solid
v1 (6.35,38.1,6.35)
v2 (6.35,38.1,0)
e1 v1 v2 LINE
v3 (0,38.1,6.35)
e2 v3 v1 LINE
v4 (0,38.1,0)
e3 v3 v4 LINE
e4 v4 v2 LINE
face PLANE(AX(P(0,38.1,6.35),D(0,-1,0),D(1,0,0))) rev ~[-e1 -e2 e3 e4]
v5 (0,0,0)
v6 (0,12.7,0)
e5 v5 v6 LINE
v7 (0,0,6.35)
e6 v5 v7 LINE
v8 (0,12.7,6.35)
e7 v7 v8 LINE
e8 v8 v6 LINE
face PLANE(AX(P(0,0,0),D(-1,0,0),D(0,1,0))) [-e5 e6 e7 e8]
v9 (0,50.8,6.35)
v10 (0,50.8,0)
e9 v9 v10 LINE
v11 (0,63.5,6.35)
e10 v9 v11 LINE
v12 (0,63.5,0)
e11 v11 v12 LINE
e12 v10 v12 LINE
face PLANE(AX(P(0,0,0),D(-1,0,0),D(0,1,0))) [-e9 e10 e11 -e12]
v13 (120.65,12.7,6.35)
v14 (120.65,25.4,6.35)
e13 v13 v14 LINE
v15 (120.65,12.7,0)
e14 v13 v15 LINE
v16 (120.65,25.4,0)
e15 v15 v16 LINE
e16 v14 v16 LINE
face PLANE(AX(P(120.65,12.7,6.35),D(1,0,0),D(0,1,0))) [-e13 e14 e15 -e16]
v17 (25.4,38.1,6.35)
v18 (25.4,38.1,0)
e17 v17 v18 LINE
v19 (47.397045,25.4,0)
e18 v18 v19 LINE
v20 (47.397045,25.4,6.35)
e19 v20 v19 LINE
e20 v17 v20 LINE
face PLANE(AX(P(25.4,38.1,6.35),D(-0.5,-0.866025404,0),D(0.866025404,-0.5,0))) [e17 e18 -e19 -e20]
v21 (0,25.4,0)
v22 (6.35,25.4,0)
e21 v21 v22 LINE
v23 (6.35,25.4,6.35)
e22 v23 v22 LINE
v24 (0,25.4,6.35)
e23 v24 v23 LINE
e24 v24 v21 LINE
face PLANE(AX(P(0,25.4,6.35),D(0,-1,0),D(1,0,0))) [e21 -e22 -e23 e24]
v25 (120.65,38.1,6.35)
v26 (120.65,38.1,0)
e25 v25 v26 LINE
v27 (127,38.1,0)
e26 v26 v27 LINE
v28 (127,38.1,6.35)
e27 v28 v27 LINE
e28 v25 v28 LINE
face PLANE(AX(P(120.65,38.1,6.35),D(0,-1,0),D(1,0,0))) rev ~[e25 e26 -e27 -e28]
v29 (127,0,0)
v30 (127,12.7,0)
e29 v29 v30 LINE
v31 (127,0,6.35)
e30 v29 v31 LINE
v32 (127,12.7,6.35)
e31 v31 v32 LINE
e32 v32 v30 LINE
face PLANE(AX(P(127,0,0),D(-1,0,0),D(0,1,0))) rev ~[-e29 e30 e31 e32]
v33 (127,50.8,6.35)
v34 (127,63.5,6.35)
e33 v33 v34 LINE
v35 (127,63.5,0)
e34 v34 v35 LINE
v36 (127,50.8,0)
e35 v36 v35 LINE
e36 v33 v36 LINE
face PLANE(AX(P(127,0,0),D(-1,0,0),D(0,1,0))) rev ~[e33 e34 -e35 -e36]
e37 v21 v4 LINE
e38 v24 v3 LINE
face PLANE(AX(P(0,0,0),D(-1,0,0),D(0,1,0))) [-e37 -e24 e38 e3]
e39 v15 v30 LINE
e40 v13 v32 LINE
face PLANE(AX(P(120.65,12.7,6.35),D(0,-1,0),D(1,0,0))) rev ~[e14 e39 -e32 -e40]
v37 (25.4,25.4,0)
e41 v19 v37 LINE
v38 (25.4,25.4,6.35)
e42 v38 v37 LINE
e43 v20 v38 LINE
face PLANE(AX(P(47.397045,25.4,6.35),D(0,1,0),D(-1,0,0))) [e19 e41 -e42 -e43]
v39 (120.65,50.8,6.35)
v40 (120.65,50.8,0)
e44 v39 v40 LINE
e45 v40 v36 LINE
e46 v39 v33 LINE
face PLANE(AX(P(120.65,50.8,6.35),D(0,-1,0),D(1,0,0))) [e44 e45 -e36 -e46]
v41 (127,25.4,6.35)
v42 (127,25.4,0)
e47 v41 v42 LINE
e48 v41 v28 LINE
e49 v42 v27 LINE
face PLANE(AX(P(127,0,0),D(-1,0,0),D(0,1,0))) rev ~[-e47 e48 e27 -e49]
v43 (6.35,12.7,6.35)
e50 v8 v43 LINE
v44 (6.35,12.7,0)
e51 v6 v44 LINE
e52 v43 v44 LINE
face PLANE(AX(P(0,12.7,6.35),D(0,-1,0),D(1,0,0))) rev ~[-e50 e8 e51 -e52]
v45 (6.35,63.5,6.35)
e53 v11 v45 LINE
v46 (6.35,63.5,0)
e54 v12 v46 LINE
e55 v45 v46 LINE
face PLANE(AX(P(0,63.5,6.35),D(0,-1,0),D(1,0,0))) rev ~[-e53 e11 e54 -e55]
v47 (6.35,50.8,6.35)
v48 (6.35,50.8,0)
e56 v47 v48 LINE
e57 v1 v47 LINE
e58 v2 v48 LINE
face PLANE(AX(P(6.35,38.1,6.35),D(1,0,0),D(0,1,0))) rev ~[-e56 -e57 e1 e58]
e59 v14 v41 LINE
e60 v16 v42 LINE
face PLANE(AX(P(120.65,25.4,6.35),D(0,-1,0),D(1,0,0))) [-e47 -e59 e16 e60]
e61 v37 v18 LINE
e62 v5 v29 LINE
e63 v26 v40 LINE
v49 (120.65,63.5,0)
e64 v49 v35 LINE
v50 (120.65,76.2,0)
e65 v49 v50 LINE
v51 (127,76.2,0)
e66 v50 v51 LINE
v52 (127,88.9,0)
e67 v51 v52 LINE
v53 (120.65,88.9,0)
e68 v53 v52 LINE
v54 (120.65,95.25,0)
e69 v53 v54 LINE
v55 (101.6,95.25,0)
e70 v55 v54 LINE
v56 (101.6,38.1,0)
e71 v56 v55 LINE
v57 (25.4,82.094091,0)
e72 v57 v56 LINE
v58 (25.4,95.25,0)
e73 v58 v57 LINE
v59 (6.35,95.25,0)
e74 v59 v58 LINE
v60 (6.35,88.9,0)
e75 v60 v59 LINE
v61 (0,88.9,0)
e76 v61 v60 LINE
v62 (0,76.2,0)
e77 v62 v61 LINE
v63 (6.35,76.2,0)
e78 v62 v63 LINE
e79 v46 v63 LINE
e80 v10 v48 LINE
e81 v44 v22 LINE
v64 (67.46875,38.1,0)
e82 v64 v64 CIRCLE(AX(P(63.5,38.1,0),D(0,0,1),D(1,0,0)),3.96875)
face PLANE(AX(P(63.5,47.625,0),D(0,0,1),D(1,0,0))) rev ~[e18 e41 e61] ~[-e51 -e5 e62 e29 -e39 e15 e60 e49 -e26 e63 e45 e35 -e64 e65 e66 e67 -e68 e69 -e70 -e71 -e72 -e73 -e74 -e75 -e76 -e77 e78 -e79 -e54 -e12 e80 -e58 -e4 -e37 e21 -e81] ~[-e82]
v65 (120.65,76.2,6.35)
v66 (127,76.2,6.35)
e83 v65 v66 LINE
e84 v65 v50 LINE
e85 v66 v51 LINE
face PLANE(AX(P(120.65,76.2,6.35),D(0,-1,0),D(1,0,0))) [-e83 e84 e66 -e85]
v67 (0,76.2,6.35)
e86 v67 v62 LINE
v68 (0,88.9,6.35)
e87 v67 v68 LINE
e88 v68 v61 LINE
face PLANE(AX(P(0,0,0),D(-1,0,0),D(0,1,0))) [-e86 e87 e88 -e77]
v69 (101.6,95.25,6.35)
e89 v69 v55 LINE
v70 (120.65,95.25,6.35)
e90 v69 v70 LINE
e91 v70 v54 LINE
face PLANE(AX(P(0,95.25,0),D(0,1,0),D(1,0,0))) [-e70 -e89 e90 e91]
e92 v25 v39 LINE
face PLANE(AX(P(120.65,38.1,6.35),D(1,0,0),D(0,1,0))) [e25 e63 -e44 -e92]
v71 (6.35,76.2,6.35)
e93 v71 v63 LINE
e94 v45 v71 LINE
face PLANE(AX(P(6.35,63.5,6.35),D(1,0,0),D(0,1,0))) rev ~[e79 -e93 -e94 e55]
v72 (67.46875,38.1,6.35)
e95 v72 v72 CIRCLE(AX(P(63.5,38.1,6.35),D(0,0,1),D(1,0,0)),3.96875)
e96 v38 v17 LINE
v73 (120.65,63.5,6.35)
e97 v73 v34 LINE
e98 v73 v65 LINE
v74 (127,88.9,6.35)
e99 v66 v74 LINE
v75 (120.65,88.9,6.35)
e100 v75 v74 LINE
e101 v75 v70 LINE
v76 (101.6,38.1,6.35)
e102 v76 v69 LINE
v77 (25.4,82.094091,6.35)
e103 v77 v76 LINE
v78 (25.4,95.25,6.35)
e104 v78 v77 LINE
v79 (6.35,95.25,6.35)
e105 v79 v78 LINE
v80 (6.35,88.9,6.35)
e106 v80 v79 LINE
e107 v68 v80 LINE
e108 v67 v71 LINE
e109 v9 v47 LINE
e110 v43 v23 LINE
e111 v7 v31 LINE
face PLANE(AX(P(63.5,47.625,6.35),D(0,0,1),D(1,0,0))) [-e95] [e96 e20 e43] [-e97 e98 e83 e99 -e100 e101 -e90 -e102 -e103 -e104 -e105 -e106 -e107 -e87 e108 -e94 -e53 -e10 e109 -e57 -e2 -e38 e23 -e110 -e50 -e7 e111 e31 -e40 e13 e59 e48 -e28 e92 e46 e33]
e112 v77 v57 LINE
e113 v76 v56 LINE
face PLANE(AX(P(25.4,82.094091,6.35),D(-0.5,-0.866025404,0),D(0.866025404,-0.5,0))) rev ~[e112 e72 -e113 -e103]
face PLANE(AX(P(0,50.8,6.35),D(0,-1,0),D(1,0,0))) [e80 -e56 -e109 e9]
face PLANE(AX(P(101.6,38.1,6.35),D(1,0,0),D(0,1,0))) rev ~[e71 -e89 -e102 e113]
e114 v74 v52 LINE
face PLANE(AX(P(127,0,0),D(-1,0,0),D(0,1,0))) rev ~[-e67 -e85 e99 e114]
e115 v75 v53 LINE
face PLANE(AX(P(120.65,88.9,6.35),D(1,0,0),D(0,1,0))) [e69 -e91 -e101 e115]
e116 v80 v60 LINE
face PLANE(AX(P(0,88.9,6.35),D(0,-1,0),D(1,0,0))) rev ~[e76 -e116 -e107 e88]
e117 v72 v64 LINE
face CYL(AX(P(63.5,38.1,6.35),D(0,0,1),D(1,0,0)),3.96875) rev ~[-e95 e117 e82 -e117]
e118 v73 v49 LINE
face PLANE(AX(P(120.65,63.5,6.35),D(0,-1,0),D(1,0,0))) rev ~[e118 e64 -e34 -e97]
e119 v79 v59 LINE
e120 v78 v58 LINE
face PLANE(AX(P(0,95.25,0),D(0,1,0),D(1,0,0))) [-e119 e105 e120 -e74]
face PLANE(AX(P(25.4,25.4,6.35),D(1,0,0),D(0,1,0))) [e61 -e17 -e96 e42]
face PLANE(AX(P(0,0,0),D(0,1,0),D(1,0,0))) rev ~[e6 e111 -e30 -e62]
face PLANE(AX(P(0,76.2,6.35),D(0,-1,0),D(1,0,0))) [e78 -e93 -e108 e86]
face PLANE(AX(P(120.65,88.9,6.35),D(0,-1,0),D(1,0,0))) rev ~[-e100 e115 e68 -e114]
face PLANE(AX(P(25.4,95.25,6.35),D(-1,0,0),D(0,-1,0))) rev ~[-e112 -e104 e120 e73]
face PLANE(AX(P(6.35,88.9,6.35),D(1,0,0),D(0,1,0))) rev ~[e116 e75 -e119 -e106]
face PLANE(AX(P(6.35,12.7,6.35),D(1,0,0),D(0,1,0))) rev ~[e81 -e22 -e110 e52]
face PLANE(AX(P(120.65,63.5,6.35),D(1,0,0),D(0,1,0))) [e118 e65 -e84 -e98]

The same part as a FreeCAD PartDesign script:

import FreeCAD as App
import Part
import Sketcher
from FreeCAD import Vector
Q = App.Units.Quantity


def add_polygon(sketch, points):
    """Adds a closed chain of lines whose ends are joined by coincident constraints."""
    first, n = sketch.GeometryCount, len(points)
    for a, b in zip(points, points[1:] + points[:1]):
        sketch.addGeometry(Part.LineSegment(App.Vector(*a, 0), App.Vector(*b, 0)), False)
    for i in range(n):
        sketch.addConstraint(Sketcher.Constraint("Coincident", first + i, 2, first + (i + 1) % n, 1))

doc = App.newDocument("Part")
params = doc.addObject("Spreadsheet::Sheet", "Params")
for row, (alias, value) in enumerate([
    ("sketch1_width", "5 in"),
    ("sketch1_height", "3.75 in"),
    ("pad1_length", "0.25 in"),
    ("sketch2_diameter", "0.3125 in"),
    ("sketch3_height", "0.5 in"),
    ("sketch3_width", "0.25 in"),
    ("sketch4_height", "0.5 in"),
    ("sketch4_width", "0.25 in"),
    ("linearpattern_pitch", "1 in"),
    ("sketch5_width", "3 in"),
    ("sketch5_length", "1 in"),
    ("sketch5_height", "0.5 in"),
    ("sketch5_height2", "2.25 in"),
], start=1):
    params.set(f"A{row}", alias)
    params.set(f"B{row}", "=" + value)
    params.setAlias(f"B{row}", alias)

body = doc.addObject("PartDesign::Body", "Body")

# Sketch on XY plane
sketch1 = doc.addObject("Sketcher::SketchObject", "Sketch")
body.addObject(sketch1)
sketch1.AttachmentSupport = (doc.XY_Plane, [""])
sketch1.MapMode = "FlatFace"
add_polygon(sketch1, [(0, 95.25), (0, 0), (127, 0), (127, 95.25)])  # lines 0-3
sketch1.addConstraint(Sketcher.Constraint("Vertical", 0))
sketch1.addConstraint(Sketcher.Constraint("Horizontal", 1))
sketch1.addConstraint(Sketcher.Constraint("Vertical", 2))
sketch1.addConstraint(Sketcher.Constraint("Horizontal", 3))
sketch1.addConstraint(Sketcher.Constraint("Coincident", 0, 2, -1, 1))
sketch1.addConstraint(Sketcher.Constraint("DistanceX", 1, 1, 1, 2, Q("5 in")))
sketch1.addConstraint(Sketcher.Constraint("DistanceY", 0, 2, 0, 1, Q("3.75 in")))
sketch1.setExpression("Constraints[9]", "Params.sketch1_width")
sketch1.setExpression("Constraints[10]", "Params.sketch1_height")
pad1 = doc.addObject("PartDesign::Pad", "Pad")
body.addObject(pad1)
pad1.Profile = sketch1
pad1.setExpression("Length", "Params.pad1_length")

# Sketch on XY plane
sketch2 = doc.addObject("Sketcher::SketchObject", "Sketch001")
body.addObject(sketch2)
sketch2.AttachmentSupport = (doc.XY_Plane, [""])
sketch2.MapMode = "FlatFace"
sketch2.AttachmentOffset = App.Placement(Vector(0, 0, 0.25 * 25.4), App.Rotation())
sketch2.addGeometry(Part.Circle(Vector(63.5, 38.1, 0), Vector(0, 0, 1), 3.96875), False)
sketch2.addConstraint(Sketcher.Constraint("Diameter", 0, Q("0.3125 in")))
sketch2.addConstraint(Sketcher.Constraint("DistanceX", -1, 1, 0, 3, Q("2.5 in")))
sketch2.addConstraint(Sketcher.Constraint("DistanceY", -1, 1, 0, 3, Q("1.5 in")))
sketch2.setExpression("Constraints[0]", "Params.sketch2_diameter")
pocket1 = doc.addObject("PartDesign::Pocket", "Pocket")
body.addObject(pocket1)
pocket1.Profile = sketch2
pocket1.Type = "ThroughAll"

# Sketch on XY plane
sketch3 = doc.addObject("Sketcher::SketchObject", "Sketch002")
body.addObject(sketch3)
sketch3.AttachmentSupport = (doc.XY_Plane, [""])
sketch3.MapMode = "FlatFace"
sketch3.AttachmentOffset = App.Placement(Vector(0, 0, 0.25 * 25.4), App.Rotation())
add_polygon(sketch3, [(0, 25.4), (0, 12.7), (6.35, 12.7), (6.35, 25.4)])  # lines 0-3
sketch3.addConstraint(Sketcher.Constraint("Vertical", 0))
sketch3.addConstraint(Sketcher.Constraint("Horizontal", 1))
sketch3.addConstraint(Sketcher.Constraint("Vertical", 2))
sketch3.addConstraint(Sketcher.Constraint("Horizontal", 3))
sketch3.addConstraint(Sketcher.Constraint("PointOnObject", 0, 2, -2))
sketch3.addConstraint(Sketcher.Constraint("DistanceY", 0, 2, 0, 1, Q("0.5 in")))
sketch3.addConstraint(Sketcher.Constraint("DistanceY", -1, 1, 2, 2, Q("1 in")))
sketch3.addConstraint(Sketcher.Constraint("DistanceX", 1, 1, 1, 2, Q("0.25 in")))
sketch3.setExpression("Constraints[9]", "Params.sketch3_height")
sketch3.setExpression("Constraints[11]", "Params.sketch3_width")
pocket2 = doc.addObject("PartDesign::Pocket", "Pocket001")
body.addObject(pocket2)
pocket2.Profile = sketch3
pocket2.Type = "ThroughAll"

# Sketch on XY plane
sketch4 = doc.addObject("Sketcher::SketchObject", "Sketch003")
body.addObject(sketch4)
sketch4.AttachmentSupport = (doc.XY_Plane, [""])
sketch4.MapMode = "FlatFace"
sketch4.AttachmentOffset = App.Placement(Vector(0, 0, 0.25 * 25.4), App.Rotation())
add_polygon(sketch4, [(120.65, 25.4), (120.65, 12.7), (127, 12.7), (127, 25.4)])  # lines 0-3
sketch4.addConstraint(Sketcher.Constraint("Vertical", 0))
sketch4.addConstraint(Sketcher.Constraint("Horizontal", 1))
sketch4.addConstraint(Sketcher.Constraint("Vertical", 2))
sketch4.addConstraint(Sketcher.Constraint("Horizontal", 3))
sketch4.addConstraint(Sketcher.Constraint("DistanceY", 0, 2, 0, 1, Q("0.5 in")))
sketch4.addConstraint(Sketcher.Constraint("DistanceX", -1, 1, 1, 2, Q("5 in")))
sketch4.addConstraint(Sketcher.Constraint("DistanceY", -1, 1, 2, 2, Q("1 in")))
sketch4.addConstraint(Sketcher.Constraint("DistanceX", 1, 1, 1, 2, Q("0.25 in")))
sketch4.setExpression("Constraints[8]", "Params.sketch4_height")
sketch4.setExpression("Constraints[11]", "Params.sketch4_width")
pocket3 = doc.addObject("PartDesign::Pocket", "Pocket002")
body.addObject(pocket3)
pocket3.Profile = sketch4
pocket3.Type = "ThroughAll"
doc.recompute()

linearpattern = doc.addObject("PartDesign::LinearPattern", "LinearPattern")
body.addObject(linearpattern)
linearpattern.Originals = [pocket2, pocket3]
linearpattern.Direction = (doc.Y_Axis, [""])
linearpattern.Mode = "offset"
linearpattern.setExpression("Offset", "Params.linearpattern_pitch")
linearpattern.Occurrences = 4
body.Tip = linearpattern

# Sketch on XY plane
sketch5 = doc.addObject("Sketcher::SketchObject", "Sketch004")
body.addObject(sketch5)
sketch5.AttachmentSupport = (doc.XY_Plane, [""])
sketch5.MapMode = "FlatFace"
sketch5.AttachmentOffset = App.Placement(Vector(0, 0, 0.25 * 25.4), App.Rotation())
add_polygon(sketch5, [(25.4, 95.25), (25.4, 82.094091), (101.6, 38.1), (101.6, 95.25)])  # lines 0-3
add_polygon(sketch5, [(47.397045, 25.4), (25.4, 38.1), (25.4, 25.4)])  # lines 4-6
sketch5.addConstraint(Sketcher.Constraint("Vertical", 0))
sketch5.addConstraint(Sketcher.Constraint("Vertical", 2))
sketch5.addConstraint(Sketcher.Constraint("Horizontal", 3))
sketch5.addConstraint(Sketcher.Constraint("Vertical", 5))
sketch5.addConstraint(Sketcher.Constraint("Horizontal", 6))
sketch5.addConstraint(Sketcher.Constraint("Parallel", 1, 4))
sketch5.addConstraint(Sketcher.Constraint("Horizontal", 1, 2, 4, 2))
sketch5.addConstraint(Sketcher.Constraint("Vertical", 3, 2, 4, 2))
sketch5.addConstraint(Sketcher.Constraint("DistanceX", 3, 2, 3, 1, Q("3 in")))
sketch5.addConstraint(Sketcher.Constraint("Distance", 4, Q("1 in")))
sketch5.addConstraint(Sketcher.Constraint("DistanceY", 5, 2, 5, 1, Q("0.5 in")))
sketch5.addConstraint(Sketcher.Constraint("DistanceX", -1, 1, 0, 2, Q("1 in")))
sketch5.addConstraint(Sketcher.Constraint("DistanceY", -1, 1, 5, 2, Q("1 in")))
sketch5.addConstraint(Sketcher.Constraint("DistanceY", 2, 1, 2, 2, Q("2.25 in")))
sketch5.setExpression("Constraints[15]", "Params.sketch5_width")
sketch5.setExpression("Constraints[16]", "Params.sketch5_length")
sketch5.setExpression("Constraints[17]", "Params.sketch5_height")
sketch5.setExpression("Constraints[20]", "Params.sketch5_height2")
pocket4 = doc.addObject("PartDesign::Pocket", "Pocket003")
body.addObject(pocket4)
pocket4.Profile = sketch5
pocket4.Type = "ThroughAll"

doc.recompute()
